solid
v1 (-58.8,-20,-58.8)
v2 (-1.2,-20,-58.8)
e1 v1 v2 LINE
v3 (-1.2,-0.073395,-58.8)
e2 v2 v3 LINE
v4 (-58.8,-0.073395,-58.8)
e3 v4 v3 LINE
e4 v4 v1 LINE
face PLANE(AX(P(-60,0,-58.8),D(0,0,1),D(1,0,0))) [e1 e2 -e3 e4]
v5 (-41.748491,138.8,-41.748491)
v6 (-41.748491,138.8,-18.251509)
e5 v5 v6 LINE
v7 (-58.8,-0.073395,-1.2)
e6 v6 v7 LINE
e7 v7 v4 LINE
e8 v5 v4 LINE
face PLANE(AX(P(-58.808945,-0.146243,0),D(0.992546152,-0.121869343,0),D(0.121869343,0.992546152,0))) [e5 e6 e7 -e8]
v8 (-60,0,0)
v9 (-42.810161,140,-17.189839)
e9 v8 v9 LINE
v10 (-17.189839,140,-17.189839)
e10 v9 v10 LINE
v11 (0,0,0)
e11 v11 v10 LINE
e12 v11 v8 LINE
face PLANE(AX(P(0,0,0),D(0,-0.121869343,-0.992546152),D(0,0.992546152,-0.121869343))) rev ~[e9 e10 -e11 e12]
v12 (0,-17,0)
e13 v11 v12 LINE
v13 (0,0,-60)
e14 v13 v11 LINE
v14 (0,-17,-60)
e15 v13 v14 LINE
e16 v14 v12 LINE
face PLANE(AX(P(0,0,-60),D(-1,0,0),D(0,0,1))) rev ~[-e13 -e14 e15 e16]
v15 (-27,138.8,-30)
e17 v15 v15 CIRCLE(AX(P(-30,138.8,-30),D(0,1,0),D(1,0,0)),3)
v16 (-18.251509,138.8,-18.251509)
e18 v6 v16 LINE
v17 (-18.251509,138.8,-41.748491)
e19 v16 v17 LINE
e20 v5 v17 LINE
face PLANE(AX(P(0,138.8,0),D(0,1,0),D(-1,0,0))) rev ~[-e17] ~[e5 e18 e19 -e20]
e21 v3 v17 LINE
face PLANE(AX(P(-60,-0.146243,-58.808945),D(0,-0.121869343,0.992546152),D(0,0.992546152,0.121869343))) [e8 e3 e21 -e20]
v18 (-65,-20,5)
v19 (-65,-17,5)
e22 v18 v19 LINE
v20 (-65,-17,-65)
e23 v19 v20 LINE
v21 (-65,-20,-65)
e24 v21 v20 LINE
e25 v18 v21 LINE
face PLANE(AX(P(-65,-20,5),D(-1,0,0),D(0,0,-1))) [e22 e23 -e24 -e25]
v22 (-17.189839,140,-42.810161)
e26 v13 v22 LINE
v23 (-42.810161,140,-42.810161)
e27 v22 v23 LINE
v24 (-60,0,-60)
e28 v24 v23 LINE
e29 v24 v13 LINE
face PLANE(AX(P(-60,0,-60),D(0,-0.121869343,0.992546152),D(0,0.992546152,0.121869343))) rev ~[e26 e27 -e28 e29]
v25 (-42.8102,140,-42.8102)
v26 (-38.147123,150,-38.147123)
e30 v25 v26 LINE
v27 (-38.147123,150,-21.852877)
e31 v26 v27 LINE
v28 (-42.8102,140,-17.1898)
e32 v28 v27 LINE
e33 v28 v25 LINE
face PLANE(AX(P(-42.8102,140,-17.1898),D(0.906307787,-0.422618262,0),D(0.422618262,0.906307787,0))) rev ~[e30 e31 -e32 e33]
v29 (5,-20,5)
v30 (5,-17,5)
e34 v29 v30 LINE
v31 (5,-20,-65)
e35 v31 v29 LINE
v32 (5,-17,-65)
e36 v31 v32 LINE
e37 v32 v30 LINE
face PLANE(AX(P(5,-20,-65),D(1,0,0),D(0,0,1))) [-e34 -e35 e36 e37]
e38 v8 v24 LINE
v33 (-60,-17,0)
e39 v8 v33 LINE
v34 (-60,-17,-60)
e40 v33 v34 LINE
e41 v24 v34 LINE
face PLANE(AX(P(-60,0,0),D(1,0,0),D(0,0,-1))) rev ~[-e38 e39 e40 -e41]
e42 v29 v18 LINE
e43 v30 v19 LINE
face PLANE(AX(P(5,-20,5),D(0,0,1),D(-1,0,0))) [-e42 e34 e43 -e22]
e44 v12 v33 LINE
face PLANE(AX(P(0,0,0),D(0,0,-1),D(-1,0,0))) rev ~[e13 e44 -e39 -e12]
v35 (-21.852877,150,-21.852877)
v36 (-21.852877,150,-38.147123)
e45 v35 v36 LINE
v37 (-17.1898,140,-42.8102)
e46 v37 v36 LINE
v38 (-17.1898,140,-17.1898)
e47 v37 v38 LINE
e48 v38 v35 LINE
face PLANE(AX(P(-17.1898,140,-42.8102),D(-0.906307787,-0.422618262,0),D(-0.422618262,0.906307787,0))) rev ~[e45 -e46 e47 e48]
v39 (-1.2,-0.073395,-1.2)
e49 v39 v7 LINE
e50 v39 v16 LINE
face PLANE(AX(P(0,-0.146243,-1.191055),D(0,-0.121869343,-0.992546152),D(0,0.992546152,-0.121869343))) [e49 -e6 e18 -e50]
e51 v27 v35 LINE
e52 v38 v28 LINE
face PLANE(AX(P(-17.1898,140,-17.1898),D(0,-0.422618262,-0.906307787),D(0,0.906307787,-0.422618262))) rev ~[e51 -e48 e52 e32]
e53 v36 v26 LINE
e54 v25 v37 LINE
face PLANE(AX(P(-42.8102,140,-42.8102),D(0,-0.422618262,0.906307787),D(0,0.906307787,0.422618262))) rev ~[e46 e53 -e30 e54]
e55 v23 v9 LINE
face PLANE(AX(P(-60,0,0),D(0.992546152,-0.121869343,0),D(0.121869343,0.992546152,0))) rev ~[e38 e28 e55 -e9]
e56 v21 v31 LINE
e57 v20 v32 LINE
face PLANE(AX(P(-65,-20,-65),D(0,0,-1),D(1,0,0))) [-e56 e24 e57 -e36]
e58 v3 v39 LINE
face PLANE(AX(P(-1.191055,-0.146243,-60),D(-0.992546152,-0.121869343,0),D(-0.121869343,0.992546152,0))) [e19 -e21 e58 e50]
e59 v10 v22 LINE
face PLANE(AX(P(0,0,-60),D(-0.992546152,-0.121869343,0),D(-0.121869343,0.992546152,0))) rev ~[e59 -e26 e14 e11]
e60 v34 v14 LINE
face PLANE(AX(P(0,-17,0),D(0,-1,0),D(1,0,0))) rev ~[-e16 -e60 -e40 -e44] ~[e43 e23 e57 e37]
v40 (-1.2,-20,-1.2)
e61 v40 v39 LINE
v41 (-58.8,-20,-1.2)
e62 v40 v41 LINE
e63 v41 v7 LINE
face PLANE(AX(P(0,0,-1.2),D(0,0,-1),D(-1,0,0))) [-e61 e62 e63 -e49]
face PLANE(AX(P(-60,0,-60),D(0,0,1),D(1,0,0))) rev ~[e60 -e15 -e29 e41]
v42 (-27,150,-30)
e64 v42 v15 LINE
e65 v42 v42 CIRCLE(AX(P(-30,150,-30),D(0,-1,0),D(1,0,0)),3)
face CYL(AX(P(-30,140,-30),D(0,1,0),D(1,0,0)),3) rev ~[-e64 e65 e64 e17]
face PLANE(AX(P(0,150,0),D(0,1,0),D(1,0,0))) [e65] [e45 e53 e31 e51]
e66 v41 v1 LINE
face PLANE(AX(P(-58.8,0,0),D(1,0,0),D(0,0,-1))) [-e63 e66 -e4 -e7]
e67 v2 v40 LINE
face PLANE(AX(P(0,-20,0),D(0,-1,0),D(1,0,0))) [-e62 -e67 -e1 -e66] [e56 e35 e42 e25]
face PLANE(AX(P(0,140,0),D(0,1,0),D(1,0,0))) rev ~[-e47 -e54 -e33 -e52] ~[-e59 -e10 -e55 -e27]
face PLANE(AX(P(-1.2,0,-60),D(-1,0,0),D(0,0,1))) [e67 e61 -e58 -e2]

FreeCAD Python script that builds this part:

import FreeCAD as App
import Part
import Sketcher


def faces_at(feature, points):
    """Names of the faces that lie closest to the given points."""
    faces = feature.Shape.Faces
    near = lambda p: min(range(len(faces)), key=lambda i: faces[i].distToShape(Part.Vertex(*p))[0])
    return sorted({f"Face{near(p) + 1}" for p in points})

doc = App.newDocument("Part")
body = doc.addObject("PartDesign::Body", "Body")

# Sketch on XZ plane
sketch1 = body.newObject("Sketcher::SketchObject", "Sketch")
sketch1.AttachmentSupport = (doc.getObject("XZ_Plane"), [""])
sketch1.MapMode = "FlatFace"
sketch1.addGeometry([
    Part.LineSegment(App.Vector(-60, 0, 0), App.Vector(0, 0, 0)),
    Part.LineSegment(App.Vector(0, 0, 0), App.Vector(0, -60, 0)),
    Part.LineSegment(App.Vector(0, -60, 0), App.Vector(-60, -60, 0)),
    Part.LineSegment(App.Vector(-60, -60, 0), App.Vector(-60, 0, 0)),
], False)
sketch1.addConstraint([
    Sketcher.Constraint("Coincident", 0, 2, 1, 1),
    Sketcher.Constraint("Coincident", 1, 2, 2, 1),
    Sketcher.Constraint("Coincident", 2, 2, 3, 1),
    Sketcher.Constraint("Coincident", 3, 2, 0, 1),
    Sketcher.Constraint("Horizontal", 0),
    Sketcher.Constraint("Vertical", 1),
    Sketcher.Constraint("Horizontal", 2),
    Sketcher.Constraint("Vertical", 3),
    Sketcher.Constraint("Coincident", 0, 2, -1, 1),
    Sketcher.Constraint("Equal", 2, 1),
    Sketcher.Constraint("DistanceX", 0, 1, 0, 2, 60.0),
])
pad1 = body.newObject("PartDesign::Pad", "Pad")
pad1.Profile = sketch1
pad1.Length = 20

# Sketch on XZ plane
sketch2 = body.newObject("Sketcher::SketchObject", "Sketch001")
sketch2.AttachmentSupport = (doc.getObject("XZ_Plane"), [""])
sketch2.MapMode = "FlatFace"
sketch2.addGeometry([
    Part.LineSegment(App.Vector(-60, 0, 0), App.Vector(0, 0, 0)),
    Part.LineSegment(App.Vector(0, 0, 0), App.Vector(0, -60, 0)),
    Part.LineSegment(App.Vector(0, -60, 0), App.Vector(-60, -60, 0)),
    Part.LineSegment(App.Vector(-60, -60, 0), App.Vector(-60, 0, 0)),
], False)
sketch2.addConstraint([
    Sketcher.Constraint("Coincident", 0, 2, 1, 1),
    Sketcher.Constraint("Coincident", 1, 2, 2, 1),
    Sketcher.Constraint("Coincident", 2, 2, 3, 1),
    Sketcher.Constraint("Coincident", 3, 2, 0, 1),
    Sketcher.Constraint("Horizontal", 0),
    Sketcher.Constraint("Vertical", 1),
    Sketcher.Constraint("Horizontal", 2),
    Sketcher.Constraint("Vertical", 3),
    Sketcher.Constraint("Coincident", 0, 2, -1, 1),
    Sketcher.Constraint("Equal", 2, 1),
    Sketcher.Constraint("DistanceX", 0, 1, 0, 2, 60.0),
])
pad2 = body.newObject("PartDesign::Pad", "Pad001")
pad2.Profile = sketch2
pad2.Length = 140
pad2.Reversed = True
pad2.TaperAngle = -7
doc.recompute()

thickness = body.newObject("PartDesign::Thickness", "Thickness")
thickness.Base = (pad2, faces_at(pad2, [(-20, -20, -20)]))
thickness.Value = 1.2
thickness.Reversed = True
thickness.Join = "Intersection"

# Sketch on XZ plane
sketch3 = body.newObject("Sketcher::SketchObject", "Sketch002")
sketch3.AttachmentSupport = (doc.getObject("XZ_Plane"), [""])
sketch3.MapMode = "FlatFace"
sketch3.AttachmentOffset = App.Placement(App.Vector(0, 0, -140), App.Rotation())
sketch3.addGeometry([
    Part.LineSegment(App.Vector(-17.1898, -17.1898, 0), App.Vector(-17.1898, -42.8102, 0)),
    Part.LineSegment(App.Vector(-17.1898, -42.8102, 0), App.Vector(-42.8102, -42.8102, 0)),
    Part.LineSegment(App.Vector(-42.8102, -42.8102, 0), App.Vector(-42.8102, -17.1898, 0)),
    Part.LineSegment(App.Vector(-42.8102, -17.1898, 0), App.Vector(-17.1898, -17.1898, 0)),
], False)
sketch3.addConstraint([
    Sketcher.Constraint("Coincident", 0, 2, 1, 1),
    Sketcher.Constraint("Coincident", 1, 2, 2, 1),
    Sketcher.Constraint("Coincident", 2, 2, 3, 1),
    Sketcher.Constraint("Coincident", 3, 2, 0, 1),
    Sketcher.Constraint("Vertical", 0),
    Sketcher.Constraint("Horizontal", 1),
    Sketcher.Constraint("Vertical", 2),
    Sketcher.Constraint("Horizontal", 3),
    Sketcher.Constraint("Equal", 3, 0),
    Sketcher.Constraint("DistanceX", 1, 2, 1, 1, 25.6204),
    Sketcher.Constraint("DistanceX", 0, 2, -1, 1, 17.1898),
    Sketcher.Constraint("DistanceY", 0, 2, -1, 1, 42.8102),
])
pad3 = body.newObject("PartDesign::Pad", "Pad002")
pad3.Profile = sketch3
pad3.Length = 10
pad3.Reversed = True
pad3.TaperAngle = -25

# Sketch on XZ plane
sketch4 = body.newObject("Sketcher::SketchObject", "Sketch003")
sketch4.AttachmentSupport = (doc.getObject("XZ_Plane"), [""])
sketch4.MapMode = "FlatFace"
sketch4.AttachmentOffset = App.Placement(App.Vector(0, 0, -140), App.Rotation())
sketch4.addGeometry(Part.Circle(App.Vector(-30, -30, 0), App.Vector(0, 0, 1), 3), False)
sketch4.addConstraint([
    Sketcher.Constraint("Diameter", 0, 6.0),
    Sketcher.Constraint("DistanceX", 0, 3, -1, 1, 30.0),
    Sketcher.Constraint("DistanceY", 0, 3, -1, 1, 30.0),
])
pocket1 = body.newObject("PartDesign::Pocket", "Pocket")
pocket1.Profile = sketch4
pocket1.Length = 25.4
pocket1.Midplane = True

# Sketch on XZ plane
sketch5 = body.newObject("Sketcher::SketchObject", "Sketch004")
sketch5.AttachmentSupport = (doc.getObject("XZ_Plane"), [""])
sketch5.MapMode = "FlatFace"
sketch5.AttachmentOffset = App.Placement(App.Vector(0, 0, 20), App.Rotation())
sketch5.addGeometry([
    Part.LineSegment(App.Vector(-65, 5, 0), App.Vector(-65, -65, 0)),  # 0
    Part.LineSegment(App.Vector(-65, -65, 0), App.Vector(5, -65, 0)),  # 1
    Part.LineSegment(App.Vector(5, -65, 0), App.Vector(5, 5, 0)),  # 2
    Part.LineSegment(App.Vector(5, 5, 0), App.Vector(-65, 5, 0)),  # 3
    Part.LineSegment(App.Vector(-58.8, -58.8, 0), App.Vector(-58.8, -1.2, 0)),  # 4
    Part.LineSegment(App.Vector(-58.8, -1.2, 0), App.Vector(-1.2, -1.2, 0)),  # 5
    Part.LineSegment(App.Vector(-1.2, -1.2, 0), App.Vector(-1.2, -58.8, 0)),  # 6
    Part.LineSegment(App.Vector(-1.2, -58.8, 0), App.Vector(-58.8, -58.8, 0)),  # 7
], False)
sketch5.addConstraint([
    Sketcher.Constraint("Coincident", 0, 2, 1, 1),
    Sketcher.Constraint("Coincident", 1, 2, 2, 1),
    Sketcher.Constraint("Coincident", 2, 2, 3, 1),
    Sketcher.Constraint("Coincident", 3, 2, 0, 1),
    Sketcher.Constraint("Coincident", 4, 2, 5, 1),
    Sketcher.Constraint("Coincident", 5, 2, 6, 1),
    Sketcher.Constraint("Coincident", 6, 2, 7, 1),
    Sketcher.Constraint("Coincident", 7, 2, 4, 1),
    Sketcher.Constraint("Vertical", 0),
    Sketcher.Constraint("Horizontal", 1),
    Sketcher.Constraint("Vertical", 2),
    Sketcher.Constraint("Horizontal", 3),
    Sketcher.Constraint("Vertical", 4),
    Sketcher.Constraint("Horizontal", 5),
    Sketcher.Constraint("Vertical", 6),
    Sketcher.Constraint("Horizontal", 7),
    Sketcher.Constraint("Equal", 3, 0),
    Sketcher.Constraint("Equal", 7, 4),
    Sketcher.Constraint("DistanceX", 1, 1, 1, 2, 70.0),
    Sketcher.Constraint("DistanceX", 5, 1, 5, 2, 57.6),
    Sketcher.Constraint("DistanceX", 0, 2, -1, 1, 65.0),
    Sketcher.Constraint("DistanceY", 0, 2, -1, 1, 65.0),
    Sketcher.Constraint("DistanceX", 4, 2, -1, 1, 58.8),
    Sketcher.Constraint("DistanceY", 4, 2, -1, 1, 1.2),
])
pad4 = body.newObject("PartDesign::Pad", "Pad003")
pad4.Profile = sketch5
pad4.Length = 3
pad4.Reversed = True

doc.recompute()
